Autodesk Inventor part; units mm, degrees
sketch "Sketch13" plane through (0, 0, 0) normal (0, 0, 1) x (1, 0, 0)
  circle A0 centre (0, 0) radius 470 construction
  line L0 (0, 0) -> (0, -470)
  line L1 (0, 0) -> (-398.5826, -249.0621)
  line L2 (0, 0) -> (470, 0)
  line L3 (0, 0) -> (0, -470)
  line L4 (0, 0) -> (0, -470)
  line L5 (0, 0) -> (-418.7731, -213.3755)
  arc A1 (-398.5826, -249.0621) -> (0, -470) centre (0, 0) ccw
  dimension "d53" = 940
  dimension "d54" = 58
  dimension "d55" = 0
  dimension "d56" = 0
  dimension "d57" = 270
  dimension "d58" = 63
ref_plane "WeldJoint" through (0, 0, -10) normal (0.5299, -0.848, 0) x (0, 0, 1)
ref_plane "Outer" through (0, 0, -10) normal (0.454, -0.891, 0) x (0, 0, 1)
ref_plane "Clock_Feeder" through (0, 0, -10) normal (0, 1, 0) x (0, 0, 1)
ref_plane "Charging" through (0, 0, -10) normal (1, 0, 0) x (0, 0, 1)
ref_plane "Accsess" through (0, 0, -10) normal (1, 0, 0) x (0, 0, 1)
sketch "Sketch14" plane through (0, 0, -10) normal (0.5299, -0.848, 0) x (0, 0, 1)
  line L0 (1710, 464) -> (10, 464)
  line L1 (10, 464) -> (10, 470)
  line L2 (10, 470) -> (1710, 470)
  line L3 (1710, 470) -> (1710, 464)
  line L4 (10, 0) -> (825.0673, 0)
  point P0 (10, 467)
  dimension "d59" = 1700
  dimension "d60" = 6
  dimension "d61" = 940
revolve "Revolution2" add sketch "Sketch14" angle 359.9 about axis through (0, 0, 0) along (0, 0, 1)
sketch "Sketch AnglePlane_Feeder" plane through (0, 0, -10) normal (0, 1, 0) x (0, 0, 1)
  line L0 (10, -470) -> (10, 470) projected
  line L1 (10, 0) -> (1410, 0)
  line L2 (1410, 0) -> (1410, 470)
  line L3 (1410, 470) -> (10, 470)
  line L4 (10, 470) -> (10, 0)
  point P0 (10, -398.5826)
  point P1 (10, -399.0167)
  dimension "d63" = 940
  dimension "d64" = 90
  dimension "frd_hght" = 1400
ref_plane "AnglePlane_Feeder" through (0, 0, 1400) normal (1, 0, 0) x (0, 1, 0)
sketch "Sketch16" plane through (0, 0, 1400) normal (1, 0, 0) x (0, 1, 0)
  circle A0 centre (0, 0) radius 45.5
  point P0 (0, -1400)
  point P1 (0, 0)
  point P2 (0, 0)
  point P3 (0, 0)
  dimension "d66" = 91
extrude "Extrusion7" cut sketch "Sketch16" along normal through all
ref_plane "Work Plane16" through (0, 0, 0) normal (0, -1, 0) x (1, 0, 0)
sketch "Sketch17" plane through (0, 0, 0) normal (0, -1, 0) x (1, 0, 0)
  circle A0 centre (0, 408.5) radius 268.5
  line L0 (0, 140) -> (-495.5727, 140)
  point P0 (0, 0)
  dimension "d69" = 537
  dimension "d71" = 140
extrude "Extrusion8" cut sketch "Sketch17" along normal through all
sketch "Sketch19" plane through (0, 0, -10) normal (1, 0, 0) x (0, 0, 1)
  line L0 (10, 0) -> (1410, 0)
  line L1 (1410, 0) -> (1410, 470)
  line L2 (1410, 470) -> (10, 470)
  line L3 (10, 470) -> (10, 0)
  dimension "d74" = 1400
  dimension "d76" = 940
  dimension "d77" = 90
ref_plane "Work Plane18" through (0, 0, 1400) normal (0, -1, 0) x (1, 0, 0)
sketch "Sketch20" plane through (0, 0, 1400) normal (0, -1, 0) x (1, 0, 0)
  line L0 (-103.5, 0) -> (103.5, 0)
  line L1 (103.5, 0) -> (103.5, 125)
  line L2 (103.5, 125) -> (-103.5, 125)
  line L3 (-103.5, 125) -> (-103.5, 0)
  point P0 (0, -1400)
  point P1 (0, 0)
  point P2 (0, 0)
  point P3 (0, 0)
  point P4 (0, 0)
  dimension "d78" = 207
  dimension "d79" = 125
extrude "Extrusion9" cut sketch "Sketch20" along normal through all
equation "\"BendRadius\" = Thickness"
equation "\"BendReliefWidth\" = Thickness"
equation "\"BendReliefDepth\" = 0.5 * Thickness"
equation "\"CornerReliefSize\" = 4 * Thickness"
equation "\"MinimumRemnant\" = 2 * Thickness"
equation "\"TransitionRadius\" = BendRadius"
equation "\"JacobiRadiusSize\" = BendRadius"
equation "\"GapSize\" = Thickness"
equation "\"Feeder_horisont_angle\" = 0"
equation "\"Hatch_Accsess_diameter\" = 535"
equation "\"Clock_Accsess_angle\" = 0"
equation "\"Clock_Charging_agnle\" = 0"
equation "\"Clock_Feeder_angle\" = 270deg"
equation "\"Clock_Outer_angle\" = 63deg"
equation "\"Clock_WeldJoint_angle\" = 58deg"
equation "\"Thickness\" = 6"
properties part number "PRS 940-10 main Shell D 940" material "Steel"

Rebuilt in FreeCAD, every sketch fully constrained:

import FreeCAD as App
import Part
import Sketcher

V = App.Vector
Q = App.Units.Quantity

doc = App.newDocument("Part")
params = doc.addObject("Spreadsheet::Sheet", "Params")
for row, (alias, value) in enumerate([
    ("sketch1_width", "1700 mm"),
    ("sketch1_height", "6 mm"),
    ("revolution_angle", "359.9 deg"),
    ("sketch2_diameter", "91 mm"),
    ("sketch3_diameter", "537 mm"),
    ("sketch4_width", "207 mm"),
    ("sketch4_height", "125 mm"),
], start=1):
    params.set(f"A{row}", alias)
    params.set(f"B{row}", "=" + value)
    params.setAlias(f"B{row}", alias)

body = doc.addObject("PartDesign::Body", "Body")

# Sketch on an angled plane
sketch1 = body.newObject("Sketcher::SketchObject", "Sketch")
sketch1.Placement = App.Placement(V(0, 0, -10), App.Rotation(V(0, 0, 1), V(-0.848048096, -0.529919264, 0), V(0.529919264, -0.848048096, 0), "ZXY"))
sketch1.addGeometry([
    Part.LineSegment(V(10, 464, 0), V(1710, 464, 0)),
    Part.LineSegment(V(1710, 464, 0), V(1710, 470, 0)),
    Part.LineSegment(V(1710, 470, 0), V(10, 470, 0)),
    Part.LineSegment(V(10, 470, 0), V(10, 464, 0)),
], False)
sketch1.addConstraint([
    Sketcher.Constraint("Coincident", 0, 2, 1, 1),
    Sketcher.Constraint("Coincident", 1, 2, 2, 1),
    Sketcher.Constraint("Coincident", 2, 2, 3, 1),
    Sketcher.Constraint("Coincident", 3, 2, 0, 1),
    Sketcher.Constraint("Horizontal", 0),
    Sketcher.Constraint("Vertical", 1),
    Sketcher.Constraint("Horizontal", 2),
    Sketcher.Constraint("Vertical", 3),
    Sketcher.Constraint("DistanceX", 0, 1, 0, 2, Q("1700 mm")),
    Sketcher.Constraint("DistanceY", 1, 1, 1, 2, Q("6 mm")),
    Sketcher.Constraint("DistanceX", -1, 1, 0, 2, Q("1710 mm")),
    Sketcher.Constraint("DistanceY", -1, 1, 0, 2, Q("464 mm")),
])
sketch1.setExpression("Constraints[8]", "Params.sketch1_width")
sketch1.setExpression("Constraints[9]", "Params.sketch1_height")
revolution = body.newObject("PartDesign::Revolution", "Revolution")
revolution.Profile = sketch1
revolution.ReferenceAxis = (sketch1, ["H_Axis"])
revolution.setExpression("Angle", "Params.revolution_angle")

# Sketch on YZ plane
sketch2 = body.newObject("Sketcher::SketchObject", "Sketch001")
sketch2.AttachmentSupport = (doc.getObject("YZ_Plane"), [""])
sketch2.MapMode = "FlatFace"
sketch2.addGeometry(Part.Circle(V(0, 1400, 0), V(0, 0, 1), 45.5), False)
sketch2.addConstraint([
    Sketcher.Constraint("PointOnObject", 0, 3, -2),
    Sketcher.Constraint("Diameter", 0, Q("91 mm")),
    Sketcher.Constraint("DistanceY", -1, 1, 0, 3, Q("1400 mm")),
])
sketch2.setExpression("Constraints[1]", "Params.sketch2_diameter")
pocket1 = body.newObject("PartDesign::Pocket", "Pocket")
pocket1.Profile = sketch2
pocket1.Type = "ThroughAll"
pocket1.Reversed = True

# Sketch on XZ plane
sketch3 = body.newObject("Sketcher::SketchObject", "Sketch002")
sketch3.AttachmentSupport = (doc.getObject("XZ_Plane"), [""])
sketch3.MapMode = "FlatFace"
sketch3.addGeometry(Part.Circle(V(0, 408.5, 0), V(0, 0, 1), 268.5), False)
sketch3.addConstraint([
    Sketcher.Constraint("PointOnObject", 0, 3, -2),
    Sketcher.Constraint("Diameter", 0, Q("537 mm")),
    Sketcher.Constraint("DistanceY", -1, 1, 0, 3, Q("408.5 mm")),
])
sketch3.setExpression("Constraints[1]", "Params.sketch3_diameter")
pocket2 = body.newObject("PartDesign::Pocket", "Pocket001")
pocket2.Profile = sketch3
pocket2.Type = "ThroughAll"
pocket2.Reversed = True

# Sketch on XZ plane
sketch4 = body.newObject("Sketcher::SketchObject", "Sketch003")
sketch4.AttachmentSupport = (doc.getObject("XZ_Plane"), [""])
sketch4.MapMode = "FlatFace"
sketch4.addGeometry([
    Part.LineSegment(V(-103.5, 1525, 0), V(-103.5, 1400, 0)),
    Part.LineSegment(V(-103.5, 1400, 0), V(103.5, 1400, 0)),
    Part.LineSegment(V(103.5, 1400, 0), V(103.5, 1525, 0)),
    Part.LineSegment(V(103.5, 1525, 0), V(-103.5, 1525, 0)),
], False)
sketch4.addConstraint([
    Sketcher.Constraint("Coincident", 0, 2, 1, 1),
    Sketcher.Constraint("Coincident", 1, 2, 2, 1),
    Sketcher.Constraint("Coincident", 2, 2, 3, 1),
    Sketcher.Constraint("Coincident", 3, 2, 0, 1),
    Sketcher.Constraint("Vertical", 0),
    Sketcher.Constraint("Horizontal", 1),
    Sketcher.Constraint("Vertical", 2),
    Sketcher.Constraint("Horizontal", 3),
    Sketcher.Constraint("DistanceX", 1, 1, 1, 2, Q("207 mm")),
    Sketcher.Constraint("DistanceY", 0, 2, 0, 1, Q("125 mm")),
    Sketcher.Constraint("DistanceY", -1, 1, 0, 2, Q("1400 mm")),
    Sketcher.Constraint("DistanceX", 0, 2, -1, 1, Q("103.5 mm")),
])
sketch4.setExpression("Constraints[8]", "Params.sketch4_width")
sketch4.setExpression("Constraints[9]", "Params.sketch4_height")
pocket3 = body.newObject("PartDesign::Pocket", "Pocket002")
pocket3.Profile = sketch4
pocket3.Type = "ThroughAll"
pocket3.Reversed = True

doc.recompute()
